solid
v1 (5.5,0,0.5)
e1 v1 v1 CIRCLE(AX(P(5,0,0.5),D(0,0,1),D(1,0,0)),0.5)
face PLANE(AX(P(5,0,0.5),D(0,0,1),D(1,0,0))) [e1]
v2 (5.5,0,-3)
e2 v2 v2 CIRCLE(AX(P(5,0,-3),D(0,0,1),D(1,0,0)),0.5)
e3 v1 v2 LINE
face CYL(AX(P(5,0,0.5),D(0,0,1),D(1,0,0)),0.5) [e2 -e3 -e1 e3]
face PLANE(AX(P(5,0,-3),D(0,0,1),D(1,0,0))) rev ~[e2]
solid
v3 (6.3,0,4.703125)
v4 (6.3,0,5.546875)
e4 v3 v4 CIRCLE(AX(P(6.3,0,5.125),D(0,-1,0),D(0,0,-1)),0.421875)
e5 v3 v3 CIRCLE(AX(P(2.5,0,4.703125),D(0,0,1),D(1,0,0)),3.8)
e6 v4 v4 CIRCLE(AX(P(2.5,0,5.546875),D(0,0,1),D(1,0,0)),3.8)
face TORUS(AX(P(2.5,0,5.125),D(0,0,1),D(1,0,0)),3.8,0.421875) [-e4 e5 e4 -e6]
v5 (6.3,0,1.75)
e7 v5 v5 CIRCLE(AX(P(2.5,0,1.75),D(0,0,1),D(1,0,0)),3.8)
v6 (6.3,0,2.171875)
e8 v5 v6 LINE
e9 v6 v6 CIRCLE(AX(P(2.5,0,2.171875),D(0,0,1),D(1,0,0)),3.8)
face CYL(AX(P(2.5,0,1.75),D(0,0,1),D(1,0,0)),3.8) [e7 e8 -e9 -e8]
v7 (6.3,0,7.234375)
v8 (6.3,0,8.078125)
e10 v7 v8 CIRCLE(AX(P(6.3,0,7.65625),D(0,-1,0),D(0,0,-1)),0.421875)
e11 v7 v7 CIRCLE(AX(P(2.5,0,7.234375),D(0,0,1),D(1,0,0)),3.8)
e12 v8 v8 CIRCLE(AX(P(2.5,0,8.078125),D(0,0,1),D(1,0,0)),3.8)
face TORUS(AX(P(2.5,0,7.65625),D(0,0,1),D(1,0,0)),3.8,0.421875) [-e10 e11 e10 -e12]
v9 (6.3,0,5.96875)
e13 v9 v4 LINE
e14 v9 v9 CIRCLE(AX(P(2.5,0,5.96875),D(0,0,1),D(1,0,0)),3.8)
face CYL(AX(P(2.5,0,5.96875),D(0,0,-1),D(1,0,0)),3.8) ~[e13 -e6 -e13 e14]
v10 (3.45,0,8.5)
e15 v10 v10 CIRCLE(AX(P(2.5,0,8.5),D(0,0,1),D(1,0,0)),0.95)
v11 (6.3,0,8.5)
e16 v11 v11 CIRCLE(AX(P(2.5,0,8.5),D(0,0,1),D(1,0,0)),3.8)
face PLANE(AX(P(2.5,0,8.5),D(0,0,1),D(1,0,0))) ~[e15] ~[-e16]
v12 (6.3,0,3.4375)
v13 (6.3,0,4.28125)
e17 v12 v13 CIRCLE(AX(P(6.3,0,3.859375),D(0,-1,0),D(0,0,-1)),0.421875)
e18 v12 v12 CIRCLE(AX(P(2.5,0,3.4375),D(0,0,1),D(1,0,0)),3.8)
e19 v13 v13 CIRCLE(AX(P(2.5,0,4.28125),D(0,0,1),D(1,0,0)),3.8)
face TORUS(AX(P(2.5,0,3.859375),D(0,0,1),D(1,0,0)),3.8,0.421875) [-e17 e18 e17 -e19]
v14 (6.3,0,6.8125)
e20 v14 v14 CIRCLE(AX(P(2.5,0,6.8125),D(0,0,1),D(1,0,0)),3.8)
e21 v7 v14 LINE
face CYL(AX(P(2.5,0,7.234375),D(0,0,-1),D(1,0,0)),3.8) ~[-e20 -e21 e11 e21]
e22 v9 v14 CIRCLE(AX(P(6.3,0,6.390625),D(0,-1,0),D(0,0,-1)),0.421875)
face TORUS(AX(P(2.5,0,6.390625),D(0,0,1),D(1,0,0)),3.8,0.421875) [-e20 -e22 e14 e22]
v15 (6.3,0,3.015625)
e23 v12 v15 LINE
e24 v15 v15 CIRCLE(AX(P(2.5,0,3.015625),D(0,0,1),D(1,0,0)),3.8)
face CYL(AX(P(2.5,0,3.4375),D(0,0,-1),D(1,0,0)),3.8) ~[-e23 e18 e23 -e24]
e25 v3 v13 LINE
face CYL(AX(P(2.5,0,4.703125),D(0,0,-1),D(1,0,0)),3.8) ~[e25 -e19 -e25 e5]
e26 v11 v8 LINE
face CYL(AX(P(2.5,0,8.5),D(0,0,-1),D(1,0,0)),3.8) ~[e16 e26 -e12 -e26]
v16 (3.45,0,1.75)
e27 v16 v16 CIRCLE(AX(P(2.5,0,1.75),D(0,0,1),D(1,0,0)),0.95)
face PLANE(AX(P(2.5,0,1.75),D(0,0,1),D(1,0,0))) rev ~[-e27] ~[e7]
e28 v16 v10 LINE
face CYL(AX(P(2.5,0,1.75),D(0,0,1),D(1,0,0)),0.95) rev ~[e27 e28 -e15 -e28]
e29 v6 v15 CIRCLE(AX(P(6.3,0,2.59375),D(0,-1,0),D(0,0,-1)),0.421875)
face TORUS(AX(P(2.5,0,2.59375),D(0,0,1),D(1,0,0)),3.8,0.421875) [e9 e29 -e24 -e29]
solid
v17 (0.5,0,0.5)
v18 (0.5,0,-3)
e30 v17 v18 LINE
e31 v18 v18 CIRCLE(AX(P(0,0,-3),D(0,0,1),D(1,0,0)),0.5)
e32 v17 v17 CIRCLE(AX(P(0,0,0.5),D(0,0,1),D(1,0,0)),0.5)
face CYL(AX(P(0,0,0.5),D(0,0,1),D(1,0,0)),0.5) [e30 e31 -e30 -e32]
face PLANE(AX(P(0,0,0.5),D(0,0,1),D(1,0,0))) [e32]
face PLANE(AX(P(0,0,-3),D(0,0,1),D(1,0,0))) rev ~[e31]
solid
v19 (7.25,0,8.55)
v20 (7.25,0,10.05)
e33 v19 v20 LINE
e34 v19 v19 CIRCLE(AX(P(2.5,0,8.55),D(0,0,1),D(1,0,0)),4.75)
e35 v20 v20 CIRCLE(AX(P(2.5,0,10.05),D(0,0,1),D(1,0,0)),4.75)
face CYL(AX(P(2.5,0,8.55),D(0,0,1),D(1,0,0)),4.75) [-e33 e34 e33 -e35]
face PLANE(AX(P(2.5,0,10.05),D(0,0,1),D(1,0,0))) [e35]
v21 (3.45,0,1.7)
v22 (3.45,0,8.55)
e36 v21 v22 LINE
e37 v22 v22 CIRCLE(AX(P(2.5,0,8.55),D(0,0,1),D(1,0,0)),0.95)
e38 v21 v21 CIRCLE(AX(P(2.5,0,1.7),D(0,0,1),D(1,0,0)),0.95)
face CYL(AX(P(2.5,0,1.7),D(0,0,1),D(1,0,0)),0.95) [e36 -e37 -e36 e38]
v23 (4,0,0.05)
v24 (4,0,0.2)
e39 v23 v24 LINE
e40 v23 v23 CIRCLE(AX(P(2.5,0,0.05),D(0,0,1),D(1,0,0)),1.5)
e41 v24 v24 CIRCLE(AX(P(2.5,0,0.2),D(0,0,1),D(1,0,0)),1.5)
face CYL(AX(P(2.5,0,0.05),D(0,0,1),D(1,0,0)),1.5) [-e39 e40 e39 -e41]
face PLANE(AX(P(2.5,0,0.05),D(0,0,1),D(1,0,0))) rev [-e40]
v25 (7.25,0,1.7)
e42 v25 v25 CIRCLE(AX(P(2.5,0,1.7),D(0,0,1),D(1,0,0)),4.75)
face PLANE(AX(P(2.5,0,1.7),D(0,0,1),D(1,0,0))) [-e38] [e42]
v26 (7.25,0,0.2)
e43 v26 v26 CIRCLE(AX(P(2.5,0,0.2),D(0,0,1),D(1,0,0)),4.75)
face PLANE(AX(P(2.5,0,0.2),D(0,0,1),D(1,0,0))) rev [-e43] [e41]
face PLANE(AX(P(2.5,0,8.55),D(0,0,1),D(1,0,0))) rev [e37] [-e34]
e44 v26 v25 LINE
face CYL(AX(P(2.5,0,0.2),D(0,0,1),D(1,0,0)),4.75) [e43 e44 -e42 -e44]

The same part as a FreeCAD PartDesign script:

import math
import FreeCAD as App
import Part
import Sketcher

V = App.Vector
Q = App.Units.Quantity

doc = App.newDocument("Part")
body = doc.addObject("PartDesign::Body", "Body")
body.AllowCompound = True

# Sketch on XY plane
sketch1 = doc.addObject("Sketcher::SketchObject", "Sketch")
body.addObject(sketch1)
sketch1.AttachmentSupport = (doc.XY_Plane, [""])
sketch1.MapMode = "FlatFace"
sketch1.AttachmentOffset = App.Placement(V(0, 0, 0.5), App.Rotation())
sketch1.addGeometry([
    Part.Circle(V(0, 0, 0), V(0, 0, 1), 0.5),
    Part.Circle(V(5, 0, 0), V(0, 0, 1), 0.5),
], False)
sketch1.addConstraint([
    Sketcher.Constraint("Coincident", 0, 3, -1, 1),
    Sketcher.Constraint("Equal", 0, 1),
    Sketcher.Constraint("PointOnObject", 1, 3, -1),
    Sketcher.Constraint("Diameter", 0, Q("1 mm")),
    Sketcher.Constraint("DistanceX", -1, 1, 1, 3, Q("5 mm")),
])
pad1 = doc.addObject("PartDesign::Pad", "Pad")
body.addObject(pad1)
pad1.Profile = sketch1
pad1.Length = 3.5
pad1.Reversed = True
body2 = doc.addObject("PartDesign::Body", "Body001")

# Sketch on XZ plane
sketch2 = doc.addObject("Sketcher::SketchObject", "Sketch001")
body2.addObject(sketch2)
sketch2.AttachmentSupport = (doc.getObject("XZ_Plane001"), [""])
sketch2.MapMode = "FlatFace"
sketch2.addGeometry([
    Part.LineSegment(V(2.5, 0.05, 0), V(4, 0.05, 0)),  # 0
    Part.LineSegment(V(4, 0.05, 0), V(4, 0.2, 0)),  # 1
    Part.LineSegment(V(4, 0.2, 0), V(7.25, 0.2, 0)),  # 2
    Part.LineSegment(V(7.25, 0.2, 0), V(7.25, 1.7, 0)),  # 3
    Part.LineSegment(V(7.25, 1.7, 0), V(3.45, 1.7, 0)),  # 4
    Part.LineSegment(V(3.45, 1.7, 0), V(3.45, 8.55, 0)),  # 5
    Part.LineSegment(V(3.45, 8.55, 0), V(7.25, 8.55, 0)),  # 6
    Part.LineSegment(V(7.25, 8.55, 0), V(7.25, 10.05, 0)),  # 7
    Part.LineSegment(V(7.25, 10.05, 0), V(2.5, 10.05, 0)),  # 8
    Part.LineSegment(V(2.5, 10.05, 0), V(2.5, 0.05, 0)),  # 9
], False)
sketch2.addGeometry(Part.LineSegment(V(2.5, 0.05, 0), V(2.5, 10.05, 0)), True)  # axis
sketch2.addConstraint([
    Sketcher.Constraint("Coincident", 0, 2, 1, 1),
    Sketcher.Constraint("Coincident", 1, 2, 2, 1),
    Sketcher.Constraint("Coincident", 2, 2, 3, 1),
    Sketcher.Constraint("Coincident", 3, 2, 4, 1),
    Sketcher.Constraint("Coincident", 4, 2, 5, 1),
    Sketcher.Constraint("Coincident", 5, 2, 6, 1),
    Sketcher.Constraint("Coincident", 6, 2, 7, 1),
    Sketcher.Constraint("Coincident", 7, 2, 8, 1),
    Sketcher.Constraint("Coincident", 8, 2, 9, 1),
    Sketcher.Constraint("Coincident", 9, 2, 0, 1),
    Sketcher.Constraint("Horizontal", 0),
    Sketcher.Constraint("Vertical", 1),
    Sketcher.Constraint("Horizontal", 2),
    Sketcher.Constraint("Vertical", 3),
    Sketcher.Constraint("Horizontal", 4),
    Sketcher.Constraint("Vertical", 5),
    Sketcher.Constraint("Horizontal", 6),
    Sketcher.Constraint("Vertical", 7),
    Sketcher.Constraint("Horizontal", 8),
    Sketcher.Constraint("Vertical", 9),
    Sketcher.Constraint("Vertical", 10),
    Sketcher.Constraint("Coincident", 10, 1, 9, 2),
    Sketcher.Constraint("Horizontal", 7, 2, 10, 2),
    Sketcher.Constraint("Vertical", 3, 2, 6, 2),
    Sketcher.Constraint("Equal", 0, 3),
    Sketcher.Constraint("Equal", 3, 7),
    Sketcher.Constraint("DistanceY", 9, 2, 9, 1, Q("10 mm")),
    Sketcher.Constraint("DistanceX", 0, 1, 0, 2, Q("1.5 mm")),
    Sketcher.Constraint("DistanceX", 4, 2, 4, 1, Q("3.8 mm")),
    Sketcher.Constraint("DistanceX", -1, 1, 0, 2, Q("4 mm")),
    Sketcher.Constraint("DistanceX", 2, 1, 2, 2, Q("3.25 mm")),
    Sketcher.Constraint("DistanceY", 1, 1, 1, 2, Q("0.15 mm")),
    Sketcher.Constraint("DistanceY", -1, 1, 1, 2, Q("0.2 mm")),
])
revolution = doc.addObject("PartDesign::Revolution", "Revolution")
body2.addObject(revolution)
revolution.Profile = sketch2
revolution.ReferenceAxis = (sketch2, ["Axis0"])
revolution.Angle = 360
body3 = doc.addObject("PartDesign::Body", "Body002")

# Sketch on XZ plane
sketch3 = doc.addObject("Sketcher::SketchObject", "Sketch002")
body3.addObject(sketch3)
sketch3.AttachmentSupport = (doc.getObject("XZ_Plane002"), [""])
sketch3.MapMode = "FlatFace"
sketch3.addGeometry([
    Part.LineSegment(V(3.45, 1.75, 0), V(6.3, 1.75, 0)),  # 0
    Part.LineSegment(V(6.3, 1.75, 0), V(6.3, 2.171875, 0)),  # 1
    Part.ArcOfCircle(Part.Circle(V(6.3, 2.59375, 0), V(0, 0, 1), 0.421875), math.radians(-90), math.radians(90)),  # 2
    Part.LineSegment(V(6.3, 3.015625, 0), V(6.3, 3.4375, 0)),  # 3
    Part.ArcOfCircle(Part.Circle(V(6.3, 3.859375, 0), V(0, 0, 1), 0.421875), math.radians(-90), math.radians(90)),  # 4
    Part.LineSegment(V(6.3, 4.28125, 0), V(6.3, 4.703125, 0)),  # 5
    Part.ArcOfCircle(Part.Circle(V(6.3, 5.125, 0), V(0, 0, 1), 0.421875), math.radians(-90), math.radians(90)),  # 6
    Part.LineSegment(V(6.3, 5.546875, 0), V(6.3, 5.96875, 0)),  # 7
    Part.ArcOfCircle(Part.Circle(V(6.3, 6.390625, 0), V(0, 0, 1), 0.421875), math.radians(-90), math.radians(90)),  # 8
    Part.LineSegment(V(6.3, 6.8125, 0), V(6.3, 7.234375, 0)),  # 9
    Part.ArcOfCircle(Part.Circle(V(6.3, 7.65625, 0), V(0, 0, 1), 0.421875), math.radians(-90), math.radians(90)),  # 10
    Part.LineSegment(V(6.3, 8.078125, 0), V(6.3, 8.5, 0)),  # 11
    Part.LineSegment(V(6.3, 8.5, 0), V(3.45, 8.5, 0)),  # 12
    Part.LineSegment(V(3.45, 8.5, 0), V(3.45, 1.75, 0)),  # 13
], False)
sketch3.addGeometry(Part.LineSegment(V(2.5, 1.75, 0), V(2.5, 8.5, 0)), True)  # axis
sketch3.addConstraint([
    Sketcher.Constraint("Coincident", 0, 2, 1, 1),
    Sketcher.Constraint("Coincident", 1, 2, 2, 1),
    Sketcher.Constraint("Coincident", 2, 2, 3, 1),
    Sketcher.Constraint("Coincident", 3, 2, 4, 1),
    Sketcher.Constraint("Coincident", 4, 2, 5, 1),
    Sketcher.Constraint("Coincident", 5, 2, 6, 1),
    Sketcher.Constraint("Coincident", 6, 2, 7, 1),
    Sketcher.Constraint("Coincident", 7, 2, 8, 1),
    Sketcher.Constraint("Coincident", 8, 2, 9, 1),
    Sketcher.Constraint("Coincident", 9, 2, 10, 1),
    Sketcher.Constraint("Coincident", 10, 2, 11, 1),
    Sketcher.Constraint("Coincident", 11, 2, 12, 1),
    Sketcher.Constraint("Coincident", 12, 2, 13, 1),
    Sketcher.Constraint("Coincident", 13, 2, 0, 1),
    Sketcher.Constraint("Horizontal", 0),
    Sketcher.Constraint("Vertical", 1),
    Sketcher.Constraint("Vertical", 3),
    Sketcher.Constraint("Vertical", 5),
    Sketcher.Constraint("Vertical", 7),
    Sketcher.Constraint("Vertical", 9),
    Sketcher.Constraint("Vertical", 11),
    Sketcher.Constraint("Horizontal", 12),
    Sketcher.Constraint("Vertical", 13),
    Sketcher.Constraint("Vertical", 14),
    Sketcher.Constraint("Equal", 2, 4),
    Sketcher.Constraint("Equal", 4, 6),
    Sketcher.Constraint("Equal", 6, 8),
    Sketcher.Constraint("Equal", 8, 10),
    Sketcher.Constraint("Horizontal", 13, 2, 14, 1),
    Sketcher.Constraint("Horizontal", 12, 2, 14, 2),
    Sketcher.Constraint("Vertical", 2, 3, 4, 3),
    Sketcher.Constraint("Vertical", 4, 3, 6, 3),
    Sketcher.Constraint("Vertical", 6, 3, 8, 3),
    Sketcher.Constraint("Vertical", 8, 3, 10, 3),
    Sketcher.Constraint("Vertical", 10, 3, 0, 2),
    Sketcher.Constraint("Vertical", 1, 2, 2, 2),
    Sketcher.Constraint("Vertical", 3, 2, 4, 2),
    Sketcher.Constraint("Vertical", 5, 2, 6, 2),
    Sketcher.Constraint("Vertical", 7, 2, 8, 2),
    Sketcher.Constraint("Vertical", 9, 2, 10, 2),
    Sketcher.Constraint("Equal", 1, 3),
    Sketcher.Constraint("Equal", 3, 5),
    Sketcher.Constraint("Equal", 5, 7),
    Sketcher.Constraint("Equal", 7, 9),
    Sketcher.Constraint("Equal", 9, 11),
    Sketcher.Constraint("DistanceX", 0, 1, 0, 2, Q("2.85 mm")),
    Sketcher.Constraint("DistanceY", 13, 2, 13, 1, Q("6.75 mm")),
    Sketcher.Constraint("DistanceX", -1, 1, 2, 3, Q("6.3 mm")),
    Sketcher.Constraint("DistanceY", -1, 1, 11, 2, Q("8.5 mm")),
    Sketcher.Constraint("DistanceX", -1, 1, 14, 1, Q("2.5 mm")),
    Sketcher.Constraint("Radius", 2, Q("0.421875 mm")),
])
revolution2 = doc.addObject("PartDesign::Revolution", "Revolution001")
body3.addObject(revolution2)
revolution2.Profile = sketch3
revolution2.ReferenceAxis = (sketch3, ["Axis0"])
revolution2.Angle = 360

doc.recompute()
